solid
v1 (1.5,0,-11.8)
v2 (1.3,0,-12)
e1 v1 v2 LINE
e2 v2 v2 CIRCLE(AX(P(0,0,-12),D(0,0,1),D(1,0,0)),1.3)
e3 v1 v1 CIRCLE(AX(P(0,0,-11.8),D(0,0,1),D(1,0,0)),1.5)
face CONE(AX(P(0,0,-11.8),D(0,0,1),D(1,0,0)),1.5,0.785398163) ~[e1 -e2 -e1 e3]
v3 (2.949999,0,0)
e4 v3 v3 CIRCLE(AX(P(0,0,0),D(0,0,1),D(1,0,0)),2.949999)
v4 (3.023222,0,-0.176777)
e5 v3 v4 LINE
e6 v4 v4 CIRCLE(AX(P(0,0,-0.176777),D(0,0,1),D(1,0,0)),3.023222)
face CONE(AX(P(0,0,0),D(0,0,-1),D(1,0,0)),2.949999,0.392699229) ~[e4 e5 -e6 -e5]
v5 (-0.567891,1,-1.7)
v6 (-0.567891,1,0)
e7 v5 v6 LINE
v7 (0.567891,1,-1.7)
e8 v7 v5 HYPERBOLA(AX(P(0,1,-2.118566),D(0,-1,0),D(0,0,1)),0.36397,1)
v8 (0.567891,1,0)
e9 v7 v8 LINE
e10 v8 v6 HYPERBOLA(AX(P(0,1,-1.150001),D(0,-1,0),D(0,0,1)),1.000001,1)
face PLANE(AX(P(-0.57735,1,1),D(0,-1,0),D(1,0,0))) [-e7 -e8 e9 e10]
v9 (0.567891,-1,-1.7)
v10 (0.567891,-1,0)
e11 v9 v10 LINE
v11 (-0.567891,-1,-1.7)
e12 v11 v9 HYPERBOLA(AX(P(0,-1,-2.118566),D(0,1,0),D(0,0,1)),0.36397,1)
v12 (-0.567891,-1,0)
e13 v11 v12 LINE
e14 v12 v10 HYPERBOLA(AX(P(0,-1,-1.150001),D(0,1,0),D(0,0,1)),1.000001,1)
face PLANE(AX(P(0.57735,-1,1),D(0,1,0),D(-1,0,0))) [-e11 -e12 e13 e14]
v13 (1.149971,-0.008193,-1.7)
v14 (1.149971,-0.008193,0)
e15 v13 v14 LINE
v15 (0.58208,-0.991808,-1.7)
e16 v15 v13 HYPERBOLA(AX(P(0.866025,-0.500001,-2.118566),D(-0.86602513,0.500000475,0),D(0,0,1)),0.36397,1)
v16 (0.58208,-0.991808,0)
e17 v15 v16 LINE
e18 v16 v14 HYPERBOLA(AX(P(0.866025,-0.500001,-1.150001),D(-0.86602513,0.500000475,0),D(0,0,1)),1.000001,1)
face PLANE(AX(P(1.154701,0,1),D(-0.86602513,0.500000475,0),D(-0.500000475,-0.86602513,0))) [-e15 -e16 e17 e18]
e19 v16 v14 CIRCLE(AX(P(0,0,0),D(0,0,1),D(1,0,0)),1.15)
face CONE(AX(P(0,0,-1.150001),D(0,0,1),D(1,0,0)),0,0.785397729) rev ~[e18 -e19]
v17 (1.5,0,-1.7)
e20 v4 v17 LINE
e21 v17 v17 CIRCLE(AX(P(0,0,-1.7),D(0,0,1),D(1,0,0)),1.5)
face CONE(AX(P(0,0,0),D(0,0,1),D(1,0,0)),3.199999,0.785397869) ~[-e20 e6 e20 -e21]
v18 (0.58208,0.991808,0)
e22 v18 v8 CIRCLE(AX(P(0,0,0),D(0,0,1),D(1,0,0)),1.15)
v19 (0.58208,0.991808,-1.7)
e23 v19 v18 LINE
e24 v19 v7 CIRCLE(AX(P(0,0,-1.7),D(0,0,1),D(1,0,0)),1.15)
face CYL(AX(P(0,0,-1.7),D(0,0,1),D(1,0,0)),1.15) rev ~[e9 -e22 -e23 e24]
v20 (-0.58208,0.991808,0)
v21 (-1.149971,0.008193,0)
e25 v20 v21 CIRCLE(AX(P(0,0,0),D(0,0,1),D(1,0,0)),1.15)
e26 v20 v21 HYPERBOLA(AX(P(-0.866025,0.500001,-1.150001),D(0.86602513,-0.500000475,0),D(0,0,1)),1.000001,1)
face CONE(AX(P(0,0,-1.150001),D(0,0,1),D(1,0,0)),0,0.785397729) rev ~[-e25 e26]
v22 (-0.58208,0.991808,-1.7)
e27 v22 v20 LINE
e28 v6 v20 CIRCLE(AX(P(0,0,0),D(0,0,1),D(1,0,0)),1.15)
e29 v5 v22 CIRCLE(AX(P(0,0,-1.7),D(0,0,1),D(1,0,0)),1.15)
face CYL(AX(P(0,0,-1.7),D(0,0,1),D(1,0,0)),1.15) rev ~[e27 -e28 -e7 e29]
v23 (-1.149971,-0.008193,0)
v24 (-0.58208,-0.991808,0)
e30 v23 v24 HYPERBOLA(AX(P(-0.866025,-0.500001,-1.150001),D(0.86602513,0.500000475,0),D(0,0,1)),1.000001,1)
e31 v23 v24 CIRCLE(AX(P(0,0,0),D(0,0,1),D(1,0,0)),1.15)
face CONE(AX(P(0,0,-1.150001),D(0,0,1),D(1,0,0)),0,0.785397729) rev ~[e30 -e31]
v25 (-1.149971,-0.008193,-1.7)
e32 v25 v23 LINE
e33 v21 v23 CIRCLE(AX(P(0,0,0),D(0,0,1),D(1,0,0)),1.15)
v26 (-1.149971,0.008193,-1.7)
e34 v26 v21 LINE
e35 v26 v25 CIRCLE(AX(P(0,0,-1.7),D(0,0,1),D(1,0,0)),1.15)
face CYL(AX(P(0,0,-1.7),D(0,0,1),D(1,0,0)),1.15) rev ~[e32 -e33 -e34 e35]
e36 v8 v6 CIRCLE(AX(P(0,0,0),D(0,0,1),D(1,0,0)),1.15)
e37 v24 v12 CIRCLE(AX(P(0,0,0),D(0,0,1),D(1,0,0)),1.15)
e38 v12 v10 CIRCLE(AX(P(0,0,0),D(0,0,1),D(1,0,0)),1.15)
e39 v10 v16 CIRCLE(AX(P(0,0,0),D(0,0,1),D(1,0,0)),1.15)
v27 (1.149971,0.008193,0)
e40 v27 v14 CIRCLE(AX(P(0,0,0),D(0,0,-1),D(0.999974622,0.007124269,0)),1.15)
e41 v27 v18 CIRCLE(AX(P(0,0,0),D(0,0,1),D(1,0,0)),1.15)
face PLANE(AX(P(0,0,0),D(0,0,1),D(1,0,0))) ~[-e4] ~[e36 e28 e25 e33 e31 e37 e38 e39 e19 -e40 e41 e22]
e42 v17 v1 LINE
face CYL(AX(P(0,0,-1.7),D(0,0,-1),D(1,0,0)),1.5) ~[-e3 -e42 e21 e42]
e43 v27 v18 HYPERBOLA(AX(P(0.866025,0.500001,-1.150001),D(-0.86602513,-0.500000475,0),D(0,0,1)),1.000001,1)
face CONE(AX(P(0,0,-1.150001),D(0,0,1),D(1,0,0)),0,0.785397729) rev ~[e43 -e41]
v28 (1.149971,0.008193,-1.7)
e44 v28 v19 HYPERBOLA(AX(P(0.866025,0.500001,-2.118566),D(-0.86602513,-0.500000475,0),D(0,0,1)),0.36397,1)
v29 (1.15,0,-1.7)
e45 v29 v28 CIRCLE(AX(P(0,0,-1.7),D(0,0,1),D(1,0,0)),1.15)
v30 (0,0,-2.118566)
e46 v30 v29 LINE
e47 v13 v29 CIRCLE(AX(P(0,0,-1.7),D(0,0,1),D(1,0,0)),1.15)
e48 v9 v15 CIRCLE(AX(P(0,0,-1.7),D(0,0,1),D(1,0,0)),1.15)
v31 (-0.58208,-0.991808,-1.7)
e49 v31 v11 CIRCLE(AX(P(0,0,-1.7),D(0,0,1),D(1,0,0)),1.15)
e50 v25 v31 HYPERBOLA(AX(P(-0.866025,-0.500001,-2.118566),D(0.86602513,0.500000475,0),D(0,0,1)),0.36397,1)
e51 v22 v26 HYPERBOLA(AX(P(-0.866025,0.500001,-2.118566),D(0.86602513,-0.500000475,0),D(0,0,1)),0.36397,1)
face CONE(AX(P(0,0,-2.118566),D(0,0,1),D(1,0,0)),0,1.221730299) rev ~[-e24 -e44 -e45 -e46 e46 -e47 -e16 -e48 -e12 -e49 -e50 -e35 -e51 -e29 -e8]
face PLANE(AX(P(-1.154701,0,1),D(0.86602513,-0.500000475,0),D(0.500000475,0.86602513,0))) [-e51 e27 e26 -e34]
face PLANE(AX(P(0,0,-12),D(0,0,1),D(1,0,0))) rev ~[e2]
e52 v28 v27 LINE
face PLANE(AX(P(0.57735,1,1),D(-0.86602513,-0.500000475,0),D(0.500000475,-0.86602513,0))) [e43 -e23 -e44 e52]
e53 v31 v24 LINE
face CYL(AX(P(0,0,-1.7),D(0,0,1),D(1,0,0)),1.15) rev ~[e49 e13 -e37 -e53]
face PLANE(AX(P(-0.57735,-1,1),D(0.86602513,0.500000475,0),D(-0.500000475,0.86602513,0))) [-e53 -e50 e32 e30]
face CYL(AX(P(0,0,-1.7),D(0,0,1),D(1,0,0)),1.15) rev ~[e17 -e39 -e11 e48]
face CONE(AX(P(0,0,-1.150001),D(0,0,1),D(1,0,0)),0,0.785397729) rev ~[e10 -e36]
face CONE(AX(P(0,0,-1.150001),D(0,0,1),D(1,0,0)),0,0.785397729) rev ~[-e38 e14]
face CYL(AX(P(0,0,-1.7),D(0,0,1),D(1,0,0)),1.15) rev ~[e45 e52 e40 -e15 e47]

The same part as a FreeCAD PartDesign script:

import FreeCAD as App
import Part
import Sketcher
from FreeCAD import Vector
Q = App.Units.Quantity


def edges_at(feature, points):
    """Names of the edges that pass closest to the given points."""
    edges = feature.Shape.Edges
    near = lambda p: min(range(len(edges)), key=lambda i: edges[i].distToShape(Part.Vertex(*p))[0])
    return sorted({f"Edge{near(p) + 1}" for p in points})


def add_polygon(sketch, points):
    """Adds a closed chain of lines whose ends are joined by coincident constraints."""
    first, n = sketch.GeometryCount, len(points)
    for a, b in zip(points, points[1:] + points[:1]):
        sketch.addGeometry(Part.LineSegment(App.Vector(*a, 0), App.Vector(*b, 0)), False)
    for i in range(n):
        sketch.addConstraint(Sketcher.Constraint("Coincident", first + i, 2, first + (i + 1) % n, 1))

doc = App.newDocument("Part")
body = doc.addObject("PartDesign::Body", "Body")

# Sketch on XZ plane
sketch1 = body.newObject("Sketcher::SketchObject", "Sketch")
sketch1.AttachmentSupport = (doc.getObject("XZ_Plane"), [""])
sketch1.MapMode = "FlatFace"
add_polygon(sketch1, [(0, -2.1), (1.1, -1.7), (1.1, 1), (0, 1)])  # lines 0-3
sketch1.addConstraint(Sketcher.Constraint("Vertical", 1))
sketch1.addConstraint(Sketcher.Constraint("Horizontal", 2))
sketch1.addConstraint(Sketcher.Constraint("Vertical", 3))
sketch1.addConstraint(Sketcher.Constraint("PointOnObject", 2, 2, -2))
sketch1.addConstraint(Sketcher.Constraint("Angle", 0, Q("20.00001 deg")))
sketch1.addConstraint(Sketcher.Constraint("DistanceY", 1, 1, 1, 2, 2.7))
sketch1.addConstraint(Sketcher.Constraint("DistanceY", -1, 1, 1, 2, 1.0))
sketch1.addConstraint(Sketcher.Constraint("DistanceX", 2, 2, 2, 1, 1.15))
revolution = body.newObject("PartDesign::Revolution", "Revolution")
revolution.Profile = sketch1
revolution.ReferenceAxis = (sketch1, ["V_Axis"])
revolution.Angle = 360

# Sketch on XY plane
sketch2 = body.newObject("Sketcher::SketchObject", "Sketch001")
sketch2.AttachmentSupport = (doc.getObject("XY_Plane"), [""])
sketch2.MapMode = "FlatFace"
sketch2.AttachmentOffset = App.Placement(Vector(0, 0, 1), App.Rotation())
sketch2.addGeometry(Part.Circle(Vector(0, 0, 0), Vector(0, 0, 1), 2.1), False)  # 0
add_polygon(sketch2, [(1.2, 0), (0.6, -1), (-0.6, -1), (-1.2, 0), (-0.6, 1), (0.6, 1)])  # lines 1-6
sketch2.addConstraint(Sketcher.Constraint("Horizontal", 2))
sketch2.addConstraint(Sketcher.Constraint("Horizontal", 5))
sketch2.addConstraint(Sketcher.Constraint("Coincident", 0, 3, -1, 1))
sketch2.addConstraint(Sketcher.Constraint("Symmetric", 1, 2, 4, 2, -1, 1))
sketch2.addConstraint(Sketcher.Constraint("Symmetric", 3, 2, 6, 2, -1, 1))
sketch2.addConstraint(Sketcher.Constraint("PointOnObject", 3, 2, -1))
sketch2.addConstraint(Sketcher.Constraint("Parallel", 3, 6))
sketch2.addConstraint(Sketcher.Constraint("Vertical", 2, 2, 4, 2))
sketch2.addConstraint(Sketcher.Constraint("Diameter", 0, 4.3))
sketch2.addConstraint(Sketcher.Constraint("DistanceY", 1, 2, -1, 1, 1.0))
sketch2.addConstraint(Sketcher.Constraint("DistanceX", 2, 2, 2, 1, 1.1547))
sketch2.addConstraint(Sketcher.Constraint("Distance", 1, 1.154701))
pocket1 = body.newObject("PartDesign::Pocket", "Pocket")
pocket1.Profile = sketch2
pocket1.Type = "ThroughAll"
body2 = doc.addObject("PartDesign::Body", "Body001")

# Sketch on XZ plane
sketch3 = body2.newObject("Sketcher::SketchObject", "Sketch002")
sketch3.AttachmentSupport = (doc.getObject("XZ_Plane001"), [""])
sketch3.MapMode = "FlatFace"
add_polygon(sketch3, [(3.2, 0), (1.1, 0), (0, -1.2), (0, -12), (1.5, -12), (1.5, -1.7)])  # lines 0-5
sketch3.addConstraint(Sketcher.Constraint("Horizontal", 0))
sketch3.addConstraint(Sketcher.Constraint("Vertical", 2))
sketch3.addConstraint(Sketcher.Constraint("Horizontal", 3))
sketch3.addConstraint(Sketcher.Constraint("Vertical", 4))
sketch3.addConstraint(Sketcher.Constraint("PointOnObject", 0, 2, -1))
sketch3.addConstraint(Sketcher.Constraint("PointOnObject", 1, 2, -2))
sketch3.addConstraint(Sketcher.Constraint("Parallel", 1, 5))
sketch3.addConstraint(Sketcher.Constraint("Angle", 5, Q("45.000017 deg")))
sketch3.addConstraint(Sketcher.Constraint("DistanceX", 3, 1, 3, 2, 1.5))
sketch3.addConstraint(Sketcher.Constraint("DistanceY", 4, 1, 4, 2, 10.3))
sketch3.addConstraint(Sketcher.Constraint("DistanceY", 2, 2, -1, 1, 12.0))
sketch3.addConstraint(Sketcher.Constraint("DistanceX", 0, 2, 0, 1, 2.049999))
revolution2 = body2.newObject("PartDesign::Revolution", "Revolution001")
revolution2.Profile = sketch3
revolution2.ReferenceAxis = (sketch3, ["V_Axis"])
revolution2.Angle = 360
doc.recompute()

boolean = body2.newObject("PartDesign::Boolean", "Boolean")
boolean.Type = "Cut"
boolean.addObjects([body])
doc.recompute()

chamfer = body2.newObject("PartDesign::Chamfer", "Chamfer")
chamfer.Base = (boolean, edges_at(boolean, [(-3.2, 0, 0)]))
chamfer.Size = 0.25
doc.recompute()

chamfer2 = body2.newObject("PartDesign::Chamfer", "Chamfer001")
chamfer2.Base = (chamfer, edges_at(chamfer, [(-1.5, 0, -12)]))
chamfer2.Size = 0.2

doc.recompute()
